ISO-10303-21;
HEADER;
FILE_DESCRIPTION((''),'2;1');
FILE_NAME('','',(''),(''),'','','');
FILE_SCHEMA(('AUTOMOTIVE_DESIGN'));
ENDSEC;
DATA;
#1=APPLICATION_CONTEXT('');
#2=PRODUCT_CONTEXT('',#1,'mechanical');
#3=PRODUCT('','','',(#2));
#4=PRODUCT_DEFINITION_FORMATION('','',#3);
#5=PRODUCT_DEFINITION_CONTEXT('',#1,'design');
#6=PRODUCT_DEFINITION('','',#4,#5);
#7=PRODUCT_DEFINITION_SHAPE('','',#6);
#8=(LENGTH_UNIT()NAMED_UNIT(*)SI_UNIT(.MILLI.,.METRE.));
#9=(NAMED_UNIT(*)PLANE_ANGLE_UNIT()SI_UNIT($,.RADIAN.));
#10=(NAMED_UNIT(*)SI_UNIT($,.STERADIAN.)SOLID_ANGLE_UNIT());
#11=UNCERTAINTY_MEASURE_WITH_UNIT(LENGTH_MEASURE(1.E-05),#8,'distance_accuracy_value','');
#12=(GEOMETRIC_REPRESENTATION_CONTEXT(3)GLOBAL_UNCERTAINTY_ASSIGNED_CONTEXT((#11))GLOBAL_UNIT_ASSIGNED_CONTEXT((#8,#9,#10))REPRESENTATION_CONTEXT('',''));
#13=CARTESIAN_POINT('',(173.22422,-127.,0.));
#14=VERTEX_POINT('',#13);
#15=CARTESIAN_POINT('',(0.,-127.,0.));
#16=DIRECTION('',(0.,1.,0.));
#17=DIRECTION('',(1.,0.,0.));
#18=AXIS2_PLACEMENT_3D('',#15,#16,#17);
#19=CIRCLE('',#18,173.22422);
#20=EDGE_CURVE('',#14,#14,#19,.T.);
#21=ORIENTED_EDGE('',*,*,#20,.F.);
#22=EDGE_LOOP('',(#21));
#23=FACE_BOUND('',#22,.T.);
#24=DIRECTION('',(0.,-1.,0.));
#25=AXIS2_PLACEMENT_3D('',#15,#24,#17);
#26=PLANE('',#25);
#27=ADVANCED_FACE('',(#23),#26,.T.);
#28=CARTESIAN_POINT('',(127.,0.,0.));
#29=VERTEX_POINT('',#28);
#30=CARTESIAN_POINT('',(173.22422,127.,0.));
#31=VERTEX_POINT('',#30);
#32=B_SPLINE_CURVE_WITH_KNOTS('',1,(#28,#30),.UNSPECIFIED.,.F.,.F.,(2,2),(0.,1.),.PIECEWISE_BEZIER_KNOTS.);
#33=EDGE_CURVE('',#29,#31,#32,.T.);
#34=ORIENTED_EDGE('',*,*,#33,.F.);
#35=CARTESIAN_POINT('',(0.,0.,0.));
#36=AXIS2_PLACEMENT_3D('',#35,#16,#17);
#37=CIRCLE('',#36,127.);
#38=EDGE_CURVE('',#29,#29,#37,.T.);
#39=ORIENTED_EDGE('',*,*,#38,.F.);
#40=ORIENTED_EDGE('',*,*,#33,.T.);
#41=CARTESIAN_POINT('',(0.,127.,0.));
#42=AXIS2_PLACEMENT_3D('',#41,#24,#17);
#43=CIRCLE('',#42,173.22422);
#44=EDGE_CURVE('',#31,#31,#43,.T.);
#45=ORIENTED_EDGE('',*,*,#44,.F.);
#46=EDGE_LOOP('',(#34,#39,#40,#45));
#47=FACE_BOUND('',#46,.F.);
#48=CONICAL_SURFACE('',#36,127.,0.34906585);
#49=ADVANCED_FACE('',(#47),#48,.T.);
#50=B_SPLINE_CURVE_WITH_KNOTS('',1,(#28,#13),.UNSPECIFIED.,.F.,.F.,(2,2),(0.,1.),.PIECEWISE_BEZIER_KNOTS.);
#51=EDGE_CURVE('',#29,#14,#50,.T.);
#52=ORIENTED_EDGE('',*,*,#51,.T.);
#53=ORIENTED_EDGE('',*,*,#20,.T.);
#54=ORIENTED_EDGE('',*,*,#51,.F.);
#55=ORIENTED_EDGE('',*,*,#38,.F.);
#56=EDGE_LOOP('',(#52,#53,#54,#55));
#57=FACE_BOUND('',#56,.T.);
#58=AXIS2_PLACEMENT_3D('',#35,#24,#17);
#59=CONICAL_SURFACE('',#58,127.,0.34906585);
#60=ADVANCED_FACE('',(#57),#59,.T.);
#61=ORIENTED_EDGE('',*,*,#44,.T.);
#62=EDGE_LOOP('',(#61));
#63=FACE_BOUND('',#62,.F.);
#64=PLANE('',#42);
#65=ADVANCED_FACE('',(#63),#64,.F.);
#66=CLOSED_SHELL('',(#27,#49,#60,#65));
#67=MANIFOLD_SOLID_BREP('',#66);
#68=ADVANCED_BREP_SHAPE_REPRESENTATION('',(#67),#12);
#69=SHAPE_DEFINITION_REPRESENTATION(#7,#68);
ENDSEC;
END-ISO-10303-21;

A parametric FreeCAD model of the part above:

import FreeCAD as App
import Part
import Sketcher
from FreeCAD import Vector
Q = App.Units.Quantity

doc = App.newDocument("Part")
body = doc.addObject("PartDesign::Body", "Body")

# Sketch on XZ plane
sketch1 = body.newObject("Sketcher::SketchObject", "Sketch")
sketch1.AttachmentSupport = (doc.getObject("XZ_Plane"), [""])
sketch1.MapMode = "FlatFace"
sketch1.addGeometry(Part.Circle(Vector(0, 0, 0), Vector(0, 0, 1), 127), False)
sketch1.addConstraint([
    Sketcher.Constraint("Coincident", 0, 3, -1, 1),
    Sketcher.Constraint("Diameter", 0, Q("10 in")),
])
pad1 = body.newObject("PartDesign::Pad", "Pad")
pad1.Profile = sketch1
pad1.Length = Q("10 in")
pad1.Midplane = True
pad1.TaperAngle = 20

doc.recompute()
